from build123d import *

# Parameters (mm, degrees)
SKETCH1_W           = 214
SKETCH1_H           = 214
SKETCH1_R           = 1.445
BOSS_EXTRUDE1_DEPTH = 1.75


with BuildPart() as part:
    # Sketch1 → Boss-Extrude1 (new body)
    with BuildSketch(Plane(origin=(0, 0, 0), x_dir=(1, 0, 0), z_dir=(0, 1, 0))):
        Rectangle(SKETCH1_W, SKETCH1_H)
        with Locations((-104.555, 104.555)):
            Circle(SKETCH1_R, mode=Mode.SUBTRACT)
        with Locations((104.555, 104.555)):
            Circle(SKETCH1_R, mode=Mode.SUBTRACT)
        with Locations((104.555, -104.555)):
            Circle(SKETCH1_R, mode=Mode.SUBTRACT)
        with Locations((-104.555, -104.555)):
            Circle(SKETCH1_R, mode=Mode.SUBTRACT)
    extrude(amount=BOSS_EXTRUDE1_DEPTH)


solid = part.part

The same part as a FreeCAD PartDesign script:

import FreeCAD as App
import Part
import Sketcher

V = App.Vector

doc = App.newDocument("Part")
params = doc.addObject("Spreadsheet::Sheet", "Params")
for row, (alias, value) in enumerate([
    ("sketch1_diameter", "2.89 mm"),
    ("sketch1_width", "214 mm"),
    ("pad1_length", "1.75 mm"),
], start=1):
    params.set(f"A{row}", alias)
    params.set(f"B{row}", "=" + value)
    params.setAlias(f"B{row}", alias)

body = doc.addObject("PartDesign::Body", "Body")

sketch1 = body.newObject("Sketcher::SketchObject", "Sketch")
sketch1.AttachmentSupport = (doc.getObject("XZ_Plane"), [""])
sketch1.MapMode = "FlatFace"
sketch1.addGeometry(Part.LineSegment(V(-107, -107, 0), V(-107, 107, 0)), False)
sketch1.addGeometry(Part.LineSegment(V(-107, 107, 0), V(107, 107, 0)), False)
sketch1.addGeometry(Part.LineSegment(V(107, 107, 0), V(107, -107, 0)), False)
sketch1.addGeometry(Part.LineSegment(V(107, -107, 0), V(-107, -107, 0)), False)
sketch1.addGeometry(Part.Circle(V(-104.6, 104.6, 0), V(0, 0, 1), 1.4), False)
sketch1.addGeometry(Part.Circle(V(104.6, 104.6, 0), V(0, 0, 1), 1.4), False)
sketch1.addGeometry(Part.Circle(V(-104.6, -104.6, 0), V(0, 0, 1), 1.4), False)
sketch1.addGeometry(Part.Circle(V(104.6, -104.6, 0), V(0, 0, 1), 1.4), False)
sketch1.addConstraint(Sketcher.Constraint("Coincident", 0, 2, 1, 1))
sketch1.addConstraint(Sketcher.Constraint("Coincident", 1, 2, 2, 1))
sketch1.addConstraint(Sketcher.Constraint("Coincident", 2, 2, 3, 1))
sketch1.addConstraint(Sketcher.Constraint("Coincident", 3, 2, 0, 1))
sketch1.addConstraint(Sketcher.Constraint("Vertical", 0))
sketch1.addConstraint(Sketcher.Constraint("Horizontal", 1))
sketch1.addConstraint(Sketcher.Constraint("Vertical", 2))
sketch1.addConstraint(Sketcher.Constraint("Horizontal", 3))
sketch1.addConstraint(Sketcher.Constraint("Equal", 4, 5))
sketch1.addConstraint(Sketcher.Constraint("Equal", 5, 6))
sketch1.addConstraint(Sketcher.Constraint("Equal", 6, 7))
sketch1.addConstraint(Sketcher.Constraint("Symmetric", 5, 3, 6, 3, -1, 1))
sketch1.addConstraint(Sketcher.Constraint("Symmetric", 4, 3, 7, 3, -1, 1))
sketch1.addConstraint(Sketcher.Constraint("Symmetric", 0, 2, 2, 2, -1, 1))
sketch1.addConstraint(Sketcher.Constraint("Symmetric", 4, 3, 5, 3, -2))
sketch1.addConstraint(Sketcher.Constraint("Equal", 3, 0))
sketch1.addConstraint(Sketcher.Constraint("Diameter", 4, 2.89))
sketch1.addConstraint(Sketcher.Constraint("DistanceX", 1, 1, 1, 2, 214.0))
sketch1.addConstraint(Sketcher.Constraint("DistanceX", 4, 3, 5, 3, 209.11))
sketch1.addConstraint(Sketcher.Constraint("DistanceY", 6, 3, 4, 3, 209.11))
sketch1.setExpression("Constraints[16]", "Params.sketch1_diameter")
sketch1.setExpression("Constraints[17]", "Params.sketch1_width")
pad1 = body.newObject("PartDesign::Pad", "Pad")
pad1.Profile = sketch1
pad1.setExpression("Length", "Params.pad1_length")
pad1.Reversed = True

doc.recompute()
